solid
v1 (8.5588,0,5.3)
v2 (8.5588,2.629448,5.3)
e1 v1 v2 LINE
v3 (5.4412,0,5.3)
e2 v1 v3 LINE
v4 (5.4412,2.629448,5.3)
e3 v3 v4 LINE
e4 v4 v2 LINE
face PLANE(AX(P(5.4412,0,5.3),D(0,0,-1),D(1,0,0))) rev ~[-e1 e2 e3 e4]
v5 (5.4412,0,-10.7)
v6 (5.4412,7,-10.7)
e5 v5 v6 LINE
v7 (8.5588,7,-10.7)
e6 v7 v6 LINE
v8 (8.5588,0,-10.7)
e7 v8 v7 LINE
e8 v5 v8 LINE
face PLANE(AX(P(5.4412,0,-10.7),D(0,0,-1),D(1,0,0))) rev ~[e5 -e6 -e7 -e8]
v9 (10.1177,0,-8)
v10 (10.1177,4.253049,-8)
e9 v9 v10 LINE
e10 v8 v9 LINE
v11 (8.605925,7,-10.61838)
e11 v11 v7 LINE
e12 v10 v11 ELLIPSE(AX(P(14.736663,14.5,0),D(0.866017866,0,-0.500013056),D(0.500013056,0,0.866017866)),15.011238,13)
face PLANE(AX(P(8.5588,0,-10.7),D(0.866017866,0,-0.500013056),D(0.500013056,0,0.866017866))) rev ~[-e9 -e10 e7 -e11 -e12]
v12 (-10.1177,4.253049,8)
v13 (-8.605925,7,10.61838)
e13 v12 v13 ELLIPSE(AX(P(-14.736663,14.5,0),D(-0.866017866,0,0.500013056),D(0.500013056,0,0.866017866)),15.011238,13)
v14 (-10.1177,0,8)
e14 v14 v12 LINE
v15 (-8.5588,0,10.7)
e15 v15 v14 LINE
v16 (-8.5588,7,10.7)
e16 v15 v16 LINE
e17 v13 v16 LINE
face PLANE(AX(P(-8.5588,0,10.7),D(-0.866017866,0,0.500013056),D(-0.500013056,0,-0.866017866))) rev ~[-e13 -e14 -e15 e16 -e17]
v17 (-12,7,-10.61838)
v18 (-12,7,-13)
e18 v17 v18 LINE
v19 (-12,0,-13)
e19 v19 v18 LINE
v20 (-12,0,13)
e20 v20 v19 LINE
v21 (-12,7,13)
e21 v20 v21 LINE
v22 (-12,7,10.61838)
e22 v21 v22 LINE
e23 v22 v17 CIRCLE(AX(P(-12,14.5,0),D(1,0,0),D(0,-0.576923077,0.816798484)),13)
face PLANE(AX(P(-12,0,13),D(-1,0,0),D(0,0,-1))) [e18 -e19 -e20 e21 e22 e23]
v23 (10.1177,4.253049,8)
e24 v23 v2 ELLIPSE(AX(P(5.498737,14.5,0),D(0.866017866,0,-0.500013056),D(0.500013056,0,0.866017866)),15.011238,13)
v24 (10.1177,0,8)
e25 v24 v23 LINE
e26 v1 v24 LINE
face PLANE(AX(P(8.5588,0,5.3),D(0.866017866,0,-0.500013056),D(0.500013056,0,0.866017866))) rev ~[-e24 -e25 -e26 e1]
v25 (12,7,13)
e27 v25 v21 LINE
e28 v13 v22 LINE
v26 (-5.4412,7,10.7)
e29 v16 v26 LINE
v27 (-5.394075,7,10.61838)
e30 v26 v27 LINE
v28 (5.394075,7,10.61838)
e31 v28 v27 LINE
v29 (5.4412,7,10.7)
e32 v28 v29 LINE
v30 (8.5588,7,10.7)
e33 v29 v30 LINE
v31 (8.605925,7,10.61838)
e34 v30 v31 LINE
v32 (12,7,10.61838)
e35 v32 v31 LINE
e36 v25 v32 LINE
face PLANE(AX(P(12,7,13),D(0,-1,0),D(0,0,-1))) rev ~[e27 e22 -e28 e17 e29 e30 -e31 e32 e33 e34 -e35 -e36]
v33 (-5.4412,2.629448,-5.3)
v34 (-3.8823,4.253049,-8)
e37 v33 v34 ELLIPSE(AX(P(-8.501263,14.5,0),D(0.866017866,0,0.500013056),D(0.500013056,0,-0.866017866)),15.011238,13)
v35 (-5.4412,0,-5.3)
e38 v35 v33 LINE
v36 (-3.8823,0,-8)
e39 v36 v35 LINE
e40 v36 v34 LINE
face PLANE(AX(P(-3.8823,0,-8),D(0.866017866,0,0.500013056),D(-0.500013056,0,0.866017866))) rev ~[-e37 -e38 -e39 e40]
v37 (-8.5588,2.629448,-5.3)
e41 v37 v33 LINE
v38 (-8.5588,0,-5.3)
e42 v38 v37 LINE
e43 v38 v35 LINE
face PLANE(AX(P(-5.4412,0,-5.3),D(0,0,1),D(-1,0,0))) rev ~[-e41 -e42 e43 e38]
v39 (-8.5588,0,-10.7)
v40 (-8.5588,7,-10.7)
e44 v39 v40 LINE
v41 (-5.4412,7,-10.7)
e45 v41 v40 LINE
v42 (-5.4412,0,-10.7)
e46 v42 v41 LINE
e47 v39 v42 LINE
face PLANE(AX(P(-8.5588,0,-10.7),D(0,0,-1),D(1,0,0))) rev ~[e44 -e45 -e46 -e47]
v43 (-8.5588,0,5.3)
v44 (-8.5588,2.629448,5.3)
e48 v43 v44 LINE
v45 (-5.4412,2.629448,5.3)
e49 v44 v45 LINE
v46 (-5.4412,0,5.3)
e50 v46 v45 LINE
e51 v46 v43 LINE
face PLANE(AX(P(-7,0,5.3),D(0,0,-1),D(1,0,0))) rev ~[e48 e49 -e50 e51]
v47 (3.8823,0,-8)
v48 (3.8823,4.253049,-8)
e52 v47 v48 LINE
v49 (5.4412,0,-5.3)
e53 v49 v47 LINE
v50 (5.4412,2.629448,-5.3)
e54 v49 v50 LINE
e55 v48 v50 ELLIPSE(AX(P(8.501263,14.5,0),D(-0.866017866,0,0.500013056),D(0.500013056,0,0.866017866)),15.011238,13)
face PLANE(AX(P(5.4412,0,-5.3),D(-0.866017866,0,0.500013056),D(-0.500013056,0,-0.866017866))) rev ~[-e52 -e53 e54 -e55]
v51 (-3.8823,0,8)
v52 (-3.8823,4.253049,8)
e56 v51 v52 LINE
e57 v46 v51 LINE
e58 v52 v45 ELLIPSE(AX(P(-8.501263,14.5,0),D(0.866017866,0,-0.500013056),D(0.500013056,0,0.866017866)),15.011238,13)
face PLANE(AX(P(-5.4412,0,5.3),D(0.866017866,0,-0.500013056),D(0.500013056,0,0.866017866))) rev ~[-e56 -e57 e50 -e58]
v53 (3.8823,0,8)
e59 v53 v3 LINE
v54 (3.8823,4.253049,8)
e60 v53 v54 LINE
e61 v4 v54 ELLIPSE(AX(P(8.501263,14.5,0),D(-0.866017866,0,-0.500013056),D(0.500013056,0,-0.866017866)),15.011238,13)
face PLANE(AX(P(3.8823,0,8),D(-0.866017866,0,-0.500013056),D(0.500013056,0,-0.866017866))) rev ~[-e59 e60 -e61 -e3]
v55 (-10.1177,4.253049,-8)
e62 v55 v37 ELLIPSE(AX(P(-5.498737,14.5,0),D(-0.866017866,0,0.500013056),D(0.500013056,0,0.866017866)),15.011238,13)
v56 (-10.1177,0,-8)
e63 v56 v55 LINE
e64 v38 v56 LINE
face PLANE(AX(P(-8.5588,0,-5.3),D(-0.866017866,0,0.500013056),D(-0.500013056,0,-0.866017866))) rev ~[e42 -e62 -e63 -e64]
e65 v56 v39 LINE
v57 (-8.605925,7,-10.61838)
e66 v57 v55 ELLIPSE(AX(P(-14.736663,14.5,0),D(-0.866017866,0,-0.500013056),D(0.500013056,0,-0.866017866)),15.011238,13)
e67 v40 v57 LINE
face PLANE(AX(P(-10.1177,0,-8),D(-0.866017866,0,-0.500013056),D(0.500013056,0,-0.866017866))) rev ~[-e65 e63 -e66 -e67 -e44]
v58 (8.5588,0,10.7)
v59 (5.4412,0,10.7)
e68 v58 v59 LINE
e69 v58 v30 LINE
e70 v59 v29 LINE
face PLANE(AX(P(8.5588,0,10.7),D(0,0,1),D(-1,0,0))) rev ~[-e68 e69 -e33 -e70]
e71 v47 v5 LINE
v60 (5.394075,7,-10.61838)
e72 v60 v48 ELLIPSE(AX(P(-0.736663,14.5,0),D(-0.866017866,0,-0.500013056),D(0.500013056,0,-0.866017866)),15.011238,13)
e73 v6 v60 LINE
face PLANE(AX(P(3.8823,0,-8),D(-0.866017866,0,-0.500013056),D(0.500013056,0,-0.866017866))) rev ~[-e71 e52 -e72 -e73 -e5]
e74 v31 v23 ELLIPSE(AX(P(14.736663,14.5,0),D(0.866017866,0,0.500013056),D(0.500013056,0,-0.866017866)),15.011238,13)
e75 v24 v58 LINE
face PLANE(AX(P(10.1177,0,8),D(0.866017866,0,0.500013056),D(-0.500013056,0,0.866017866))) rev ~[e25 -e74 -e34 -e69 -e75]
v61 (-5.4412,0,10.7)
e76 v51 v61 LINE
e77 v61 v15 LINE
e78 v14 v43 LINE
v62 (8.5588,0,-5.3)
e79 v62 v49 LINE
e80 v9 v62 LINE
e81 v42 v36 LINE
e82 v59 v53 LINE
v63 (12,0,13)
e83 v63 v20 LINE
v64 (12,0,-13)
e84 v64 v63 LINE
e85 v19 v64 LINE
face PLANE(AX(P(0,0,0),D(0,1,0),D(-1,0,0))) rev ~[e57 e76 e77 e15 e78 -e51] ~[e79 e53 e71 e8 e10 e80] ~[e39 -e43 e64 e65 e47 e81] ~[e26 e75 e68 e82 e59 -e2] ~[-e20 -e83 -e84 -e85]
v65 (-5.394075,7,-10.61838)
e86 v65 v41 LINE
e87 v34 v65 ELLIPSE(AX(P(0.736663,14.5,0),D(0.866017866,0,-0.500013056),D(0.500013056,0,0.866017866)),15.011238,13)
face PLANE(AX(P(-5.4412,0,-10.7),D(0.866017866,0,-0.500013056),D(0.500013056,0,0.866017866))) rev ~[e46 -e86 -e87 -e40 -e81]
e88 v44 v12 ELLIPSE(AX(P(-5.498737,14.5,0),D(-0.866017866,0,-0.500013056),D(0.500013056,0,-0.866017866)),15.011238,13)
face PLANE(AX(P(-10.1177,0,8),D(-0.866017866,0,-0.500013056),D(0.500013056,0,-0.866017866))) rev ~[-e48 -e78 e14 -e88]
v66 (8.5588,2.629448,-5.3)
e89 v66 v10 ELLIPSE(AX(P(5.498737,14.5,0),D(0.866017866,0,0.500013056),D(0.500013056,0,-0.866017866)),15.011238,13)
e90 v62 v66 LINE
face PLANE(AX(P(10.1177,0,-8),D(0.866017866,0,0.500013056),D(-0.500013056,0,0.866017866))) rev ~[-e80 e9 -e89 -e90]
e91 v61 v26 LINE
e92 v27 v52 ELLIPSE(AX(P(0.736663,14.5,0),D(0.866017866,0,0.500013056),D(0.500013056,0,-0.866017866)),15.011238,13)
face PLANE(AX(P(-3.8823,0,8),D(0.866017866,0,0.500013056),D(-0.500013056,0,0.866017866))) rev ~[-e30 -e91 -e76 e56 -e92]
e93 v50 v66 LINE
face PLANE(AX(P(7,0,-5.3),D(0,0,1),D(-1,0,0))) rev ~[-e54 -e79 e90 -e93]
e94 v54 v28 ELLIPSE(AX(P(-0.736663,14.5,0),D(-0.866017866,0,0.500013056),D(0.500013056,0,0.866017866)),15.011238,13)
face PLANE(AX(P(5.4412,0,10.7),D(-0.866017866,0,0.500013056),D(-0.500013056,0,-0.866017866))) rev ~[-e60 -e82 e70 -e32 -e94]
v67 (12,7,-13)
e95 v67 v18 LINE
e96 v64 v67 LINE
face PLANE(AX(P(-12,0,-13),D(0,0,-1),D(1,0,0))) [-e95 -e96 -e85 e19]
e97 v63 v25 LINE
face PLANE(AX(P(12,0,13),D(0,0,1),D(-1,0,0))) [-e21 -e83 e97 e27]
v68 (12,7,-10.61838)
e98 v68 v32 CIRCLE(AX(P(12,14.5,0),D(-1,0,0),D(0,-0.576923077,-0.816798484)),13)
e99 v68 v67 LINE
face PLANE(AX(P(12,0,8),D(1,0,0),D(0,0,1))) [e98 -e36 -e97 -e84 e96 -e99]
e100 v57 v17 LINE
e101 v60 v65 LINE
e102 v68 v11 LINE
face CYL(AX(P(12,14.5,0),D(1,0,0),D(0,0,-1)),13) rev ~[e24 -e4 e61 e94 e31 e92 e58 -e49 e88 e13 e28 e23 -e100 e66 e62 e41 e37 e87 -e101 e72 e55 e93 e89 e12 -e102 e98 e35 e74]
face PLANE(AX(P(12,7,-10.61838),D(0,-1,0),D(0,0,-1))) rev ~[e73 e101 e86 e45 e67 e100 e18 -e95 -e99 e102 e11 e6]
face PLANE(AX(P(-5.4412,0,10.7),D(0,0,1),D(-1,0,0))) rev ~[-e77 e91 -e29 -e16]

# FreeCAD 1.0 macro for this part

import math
import FreeCAD as App
import Part
import Sketcher

V = App.Vector
Q = App.Units.Quantity

doc = App.newDocument("Part")
body = doc.addObject("PartDesign::Body", "Body")

# Sketch on XZ plane
sketch1 = doc.addObject("Sketcher::SketchObject", "Sketch")
body.addObject(sketch1)
sketch1.AttachmentSupport = (doc.XZ_Plane, [""])
sketch1.MapMode = "FlatFace"
sketch1.addGeometry([
    Part.LineSegment(V(12, 13, 0), V(12, -13, 0)),  # 0
    Part.LineSegment(V(12, -13, 0), V(-12, -13, 0)),  # 1
    Part.LineSegment(V(-12, -13, 0), V(-12, 13, 0)),  # 2
    Part.LineSegment(V(-12, 13, 0), V(12, 13, 0)),  # 3
    Part.LineSegment(V(5.4, -5.3, 0), V(3.9, -8, 0)),  # 4
    Part.LineSegment(V(3.9, -8, 0), V(5.4, -10.7, 0)),  # 5
    Part.LineSegment(V(5.4, -10.7, 0), V(8.6, -10.7, 0)),  # 6
    Part.LineSegment(V(8.6, -10.7, 0), V(10.1, -8, 0)),  # 7
    Part.LineSegment(V(10.1, -8, 0), V(8.6, -5.3, 0)),  # 8
    Part.LineSegment(V(8.6, -5.3, 0), V(5.4, -5.3, 0)),  # 9
    Part.LineSegment(V(5.4, 5.3, 0), V(8.6, 5.3, 0)),  # 10
    Part.LineSegment(V(8.6, 5.3, 0), V(10.1, 8, 0)),  # 11
    Part.LineSegment(V(10.1, 8, 0), V(8.6, 10.7, 0)),  # 12
    Part.LineSegment(V(8.6, 10.7, 0), V(5.4, 10.7, 0)),  # 13
    Part.LineSegment(V(5.4, 10.7, 0), V(3.9, 8, 0)),  # 14
    Part.LineSegment(V(3.9, 8, 0), V(5.4, 5.3, 0)),  # 15
    Part.LineSegment(V(-5.4, 5.3, 0), V(-3.9, 8, 0)),  # 16
    Part.LineSegment(V(-3.9, 8, 0), V(-5.4, 10.7, 0)),  # 17
    Part.LineSegment(V(-5.4, 10.7, 0), V(-8.6, 10.7, 0)),  # 18
    Part.LineSegment(V(-8.6, 10.7, 0), V(-10.1, 8, 0)),  # 19
    Part.LineSegment(V(-10.1, 8, 0), V(-8.6, 5.3, 0)),  # 20
    Part.LineSegment(V(-8.6, 5.3, 0), V(-5.4, 5.3, 0)),  # 21
    Part.LineSegment(V(-5.4, -5.3, 0), V(-8.6, -5.3, 0)),  # 22
    Part.LineSegment(V(-8.6, -5.3, 0), V(-10.1, -8, 0)),  # 23
    Part.LineSegment(V(-10.1, -8, 0), V(-8.6, -10.7, 0)),  # 24
    Part.LineSegment(V(-8.6, -10.7, 0), V(-5.4, -10.7, 0)),  # 25
    Part.LineSegment(V(-5.4, -10.7, 0), V(-3.9, -8, 0)),  # 26
    Part.LineSegment(V(-3.9, -8, 0), V(-5.4, -5.3, 0)),  # 27
], False)
sketch1.addConstraint([
    Sketcher.Constraint("Coincident", 0, 2, 1, 1),
    Sketcher.Constraint("Coincident", 1, 2, 2, 1),
    Sketcher.Constraint("Coincident", 2, 2, 3, 1),
    Sketcher.Constraint("Coincident", 3, 2, 0, 1),
    Sketcher.Constraint("Coincident", 4, 2, 5, 1),
    Sketcher.Constraint("Coincident", 5, 2, 6, 1),
    Sketcher.Constraint("Coincident", 6, 2, 7, 1),
    Sketcher.Constraint("Coincident", 7, 2, 8, 1),
    Sketcher.Constraint("Coincident", 8, 2, 9, 1),
    Sketcher.Constraint("Coincident", 9, 2, 4, 1),
    Sketcher.Constraint("Coincident", 10, 2, 11, 1),
    Sketcher.Constraint("Coincident", 11, 2, 12, 1),
    Sketcher.Constraint("Coincident", 12, 2, 13, 1),
    Sketcher.Constraint("Coincident", 13, 2, 14, 1),
    Sketcher.Constraint("Coincident", 14, 2, 15, 1),
    Sketcher.Constraint("Coincident", 15, 2, 10, 1),
    Sketcher.Constraint("Coincident", 16, 2, 17, 1),
    Sketcher.Constraint("Coincident", 17, 2, 18, 1),
    Sketcher.Constraint("Coincident", 18, 2, 19, 1),
    Sketcher.Constraint("Coincident", 19, 2, 20, 1),
    Sketcher.Constraint("Coincident", 20, 2, 21, 1),
    Sketcher.Constraint("Coincident", 21, 2, 16, 1),
    Sketcher.Constraint("Coincident", 22, 2, 23, 1),
    Sketcher.Constraint("Coincident", 23, 2, 24, 1),
    Sketcher.Constraint("Coincident", 24, 2, 25, 1),
    Sketcher.Constraint("Coincident", 25, 2, 26, 1),
    Sketcher.Constraint("Coincident", 26, 2, 27, 1),
    Sketcher.Constraint("Coincident", 27, 2, 22, 1),
    Sketcher.Constraint("Vertical", 0),
    Sketcher.Constraint("Horizontal", 1),
    Sketcher.Constraint("Vertical", 2),
    Sketcher.Constraint("Horizontal", 3),
    Sketcher.Constraint("Horizontal", 6),
    Sketcher.Constraint("Horizontal", 9),
    Sketcher.Constraint("Horizontal", 10),
    Sketcher.Constraint("Horizontal", 13),
    Sketcher.Constraint("Horizontal", 18),
    Sketcher.Constraint("Horizontal", 21),
    Sketcher.Constraint("Horizontal", 22),
    Sketcher.Constraint("Horizontal", 25),
    Sketcher.Constraint("Symmetric", 0, 2, 2, 2, -1, 1),
    Sketcher.Constraint("Symmetric", 4, 2, 16, 2, -1, 1),
    Sketcher.Constraint("Symmetric", 5, 2, 17, 2, -1, 1),
    Sketcher.Constraint("Symmetric", 7, 2, 19, 2, -1, 1),
    Sketcher.Constraint("Symmetric", 8, 2, 20, 2, -1, 1),
    Sketcher.Constraint("Symmetric", 10, 2, 22, 2, -1, 1),
    Sketcher.Constraint("Symmetric", 11, 2, 23, 2, -1, 1),
    Sketcher.Constraint("Symmetric", 12, 2, 24, 2, -1, 1),
    Sketcher.Constraint("Symmetric", 14, 2, 26, 2, -1, 1),
    Sketcher.Constraint("Symmetric", 14, 2, 16, 2, -2),
    Sketcher.Constraint("Symmetric", 13, 2, 17, 2, -2),
    Sketcher.Constraint("Symmetric", 11, 2, 19, 2, -2),
    Sketcher.Constraint("Symmetric", 10, 2, 20, 2, -2),
    Sketcher.Constraint("Parallel", 4, 7),
    Sketcher.Constraint("Parallel", 5, 8),
    Sketcher.Constraint("Parallel", 7, 11),
    Sketcher.Constraint("Parallel", 8, 12),
    Sketcher.Constraint("Parallel", 12, 15),
    Sketcher.Constraint("Parallel", 14, 16),
    Sketcher.Constraint("Parallel", 16, 19),
    Sketcher.Constraint("Parallel", 23, 26),
    Sketcher.Constraint("Parallel", 24, 27),
    Sketcher.Constraint("Horizontal", 4, 2, 7, 2),
    Sketcher.Constraint("Vertical", 6, 2, 8, 2),
    Sketcher.Constraint("DistanceX", 1, 2, 1, 1, Q("24 mm")),
    Sketcher.Constraint("DistanceY", 0, 2, 0, 1, Q("26 mm")),
    Sketcher.Constraint("DistanceY", 0, 2, 4, 2, Q("5 mm")),
    Sketcher.Constraint("DistanceX", 18, 2, 13, 2, Q("14 mm")),
    Sketcher.Constraint("DistanceY", 5, 2, 4, 2, Q("2.7 mm")),
    Sketcher.Constraint("Angle", 4, Q("-120.0009 deg")),
    Sketcher.Constraint("DistanceX", 6, 1, 6, 2, Q("3.1176 mm")),
])
pad1 = doc.addObject("PartDesign::Pad", "Pad")
body.addObject(pad1)
pad1.Profile = sketch1
pad1.Length = 20
pad1.Reversed = True

# Sketch on YZ plane
sketch2 = doc.addObject("Sketcher::SketchObject", "Sketch001")
body.addObject(sketch2)
sketch2.AttachmentSupport = (doc.YZ_Plane, [""])
sketch2.MapMode = "FlatFace"
sketch2.AttachmentOffset = App.Placement(V(0, 0, 12), App.Rotation())
sketch2.addGeometry([
    Part.ArcOfCircle(Part.Circle(V(14.5, 0, 0), V(0, 0, 1), 13), math.radians(125), math.radians(235)),  # 0
    Part.LineSegment(V(7, -10.6, 0), V(7, -13, 0)),  # 1
    Part.LineSegment(V(7, -13, 0), V(20, -13, 0)),  # 2
    Part.LineSegment(V(20, -13, 0), V(20, -11.8, 0)),  # 3
    Part.ArcOfCircle(Part.Circle(V(14.5, 0, 0), V(0, 0, 1), 13), math.radians(-65), math.radians(65)),  # 4
    Part.LineSegment(V(20, 11.8, 0), V(20, 13, 0)),  # 5
    Part.LineSegment(V(20, 13, 0), V(7, 13, 0)),  # 6
    Part.LineSegment(V(7, 13, 0), V(7, 10.6, 0)),  # 7
], False)
sketch2.addConstraint([
    Sketcher.Constraint("Coincident", 0, 2, 1, 1),
    Sketcher.Constraint("Coincident", 1, 2, 2, 1),
    Sketcher.Constraint("Coincident", 2, 2, 3, 1),
    Sketcher.Constraint("Coincident", 3, 2, 4, 1),
    Sketcher.Constraint("Coincident", 4, 2, 5, 1),
    Sketcher.Constraint("Coincident", 5, 2, 6, 1),
    Sketcher.Constraint("Coincident", 6, 2, 7, 1),
    Sketcher.Constraint("Coincident", 7, 2, 0, 1),
    Sketcher.Constraint("Vertical", 1),
    Sketcher.Constraint("Horizontal", 2),
    Sketcher.Constraint("Vertical", 3),
    Sketcher.Constraint("Vertical", 5),
    Sketcher.Constraint("Horizontal", 6),
    Sketcher.Constraint("Vertical", 7),
    Sketcher.Constraint("Coincident", 4, 3, 0, 3),
    Sketcher.Constraint("Equal", 0, 4),
    Sketcher.Constraint("Symmetric", 3, 2, 4, 2, -1),
    Sketcher.Constraint("Symmetric", 1, 2, 6, 2, -1),
    Sketcher.Constraint("Radius", 0, Q("13 mm")),
    Sketcher.Constraint("DistanceX", -1, 1, 0, 2, Q("7 mm")),
    Sketcher.Constraint("DistanceY", 2, 2, 5, 2, Q("26 mm")),
    Sketcher.Constraint("DistanceX", -1, 1, 0, 3, Q("14.5 mm")),
    Sketcher.Constraint("DistanceX", 2, 1, 2, 2, Q("13 mm")),
])
pocket1 = doc.addObject("PartDesign::Pocket", "Pocket")
body.addObject(pocket1)
pocket1.Profile = sketch2
pocket1.Length = 24

doc.recompute()
